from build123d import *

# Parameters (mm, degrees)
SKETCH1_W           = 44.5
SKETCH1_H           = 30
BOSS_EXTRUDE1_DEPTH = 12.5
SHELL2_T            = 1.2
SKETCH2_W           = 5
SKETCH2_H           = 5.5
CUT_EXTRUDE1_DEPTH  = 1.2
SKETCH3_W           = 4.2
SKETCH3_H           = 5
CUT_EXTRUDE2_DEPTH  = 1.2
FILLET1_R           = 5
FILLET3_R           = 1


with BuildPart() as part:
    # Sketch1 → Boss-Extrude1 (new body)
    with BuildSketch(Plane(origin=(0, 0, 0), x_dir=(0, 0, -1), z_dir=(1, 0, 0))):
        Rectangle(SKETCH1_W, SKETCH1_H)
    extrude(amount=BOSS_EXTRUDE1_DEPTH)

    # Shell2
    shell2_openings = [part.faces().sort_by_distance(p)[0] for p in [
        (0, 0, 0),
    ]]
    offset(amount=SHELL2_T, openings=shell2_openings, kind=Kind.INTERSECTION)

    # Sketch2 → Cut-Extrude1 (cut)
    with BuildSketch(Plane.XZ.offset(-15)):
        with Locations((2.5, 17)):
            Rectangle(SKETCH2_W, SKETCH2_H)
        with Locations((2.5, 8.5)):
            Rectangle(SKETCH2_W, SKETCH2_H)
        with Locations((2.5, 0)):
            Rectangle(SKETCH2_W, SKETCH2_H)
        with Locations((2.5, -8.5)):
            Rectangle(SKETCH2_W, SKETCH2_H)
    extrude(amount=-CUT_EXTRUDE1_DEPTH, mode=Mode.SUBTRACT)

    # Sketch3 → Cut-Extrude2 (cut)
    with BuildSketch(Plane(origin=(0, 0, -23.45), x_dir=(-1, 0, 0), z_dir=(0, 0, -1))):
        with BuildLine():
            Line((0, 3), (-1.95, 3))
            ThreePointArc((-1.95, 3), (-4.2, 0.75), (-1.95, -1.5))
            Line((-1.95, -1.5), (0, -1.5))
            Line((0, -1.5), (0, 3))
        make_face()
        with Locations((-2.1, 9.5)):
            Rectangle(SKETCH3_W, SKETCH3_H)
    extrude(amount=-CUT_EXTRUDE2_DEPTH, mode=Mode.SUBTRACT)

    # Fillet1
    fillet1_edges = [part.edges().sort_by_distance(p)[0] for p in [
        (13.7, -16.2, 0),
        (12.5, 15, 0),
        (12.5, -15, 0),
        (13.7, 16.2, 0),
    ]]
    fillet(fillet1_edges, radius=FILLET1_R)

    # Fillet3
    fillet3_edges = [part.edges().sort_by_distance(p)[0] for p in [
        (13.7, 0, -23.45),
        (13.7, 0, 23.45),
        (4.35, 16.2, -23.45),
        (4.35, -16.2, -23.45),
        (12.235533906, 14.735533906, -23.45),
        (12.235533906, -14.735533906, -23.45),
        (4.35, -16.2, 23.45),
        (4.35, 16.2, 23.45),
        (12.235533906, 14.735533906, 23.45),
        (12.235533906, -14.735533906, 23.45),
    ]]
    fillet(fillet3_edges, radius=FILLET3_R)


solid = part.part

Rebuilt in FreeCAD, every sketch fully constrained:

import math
import FreeCAD as App
import Part
import Sketcher
from FreeCAD import Vector
Q = App.Units.Quantity


def edges_at(feature, points):
    """Names of the edges that pass closest to the given points."""
    edges = feature.Shape.Edges
    near = lambda p: min(range(len(edges)), key=lambda i: edges[i].distToShape(Part.Vertex(*p))[0])
    return sorted({f"Edge{near(p) + 1}" for p in points})


def faces_at(feature, points):
    """Names of the faces that lie closest to the given points."""
    faces = feature.Shape.Faces
    near = lambda p: min(range(len(faces)), key=lambda i: faces[i].distToShape(Part.Vertex(*p))[0])
    return sorted({f"Face{near(p) + 1}" for p in points})


def add_polygon(sketch, points):
    """Adds a closed chain of lines whose ends are joined by coincident constraints."""
    first, n = sketch.GeometryCount, len(points)
    for a, b in zip(points, points[1:] + points[:1]):
        sketch.addGeometry(Part.LineSegment(App.Vector(*a, 0), App.Vector(*b, 0)), False)
    for i in range(n):
        sketch.addConstraint(Sketcher.Constraint("Coincident", first + i, 2, first + (i + 1) % n, 1))

doc = App.newDocument("Part")
body = doc.addObject("PartDesign::Body", "Body")

# Sketch on YZ plane
sketch1 = body.newObject("Sketcher::SketchObject", "Sketch")
sketch1.AttachmentSupport = (doc.getObject("YZ_Plane"), [""])
sketch1.MapMode = "FlatFace"
add_polygon(sketch1, [(15, 22), (-15, 22), (-15, -22), (15, -22)])  # lines 0-3
sketch1.addConstraint(Sketcher.Constraint("Horizontal", 0))
sketch1.addConstraint(Sketcher.Constraint("Vertical", 1))
sketch1.addConstraint(Sketcher.Constraint("Horizontal", 2))
sketch1.addConstraint(Sketcher.Constraint("Vertical", 3))
sketch1.addConstraint(Sketcher.Constraint("Symmetric", 0, 2, 2, 2, -1, 1))
sketch1.addConstraint(Sketcher.Constraint("DistanceX", 0, 2, 0, 1, Q("30 mm")))
sketch1.addConstraint(Sketcher.Constraint("DistanceY", 1, 2, 1, 1, Q("44.5 mm")))
pad1 = body.newObject("PartDesign::Pad", "Pad")
pad1.Profile = sketch1
pad1.Length = 12.5
doc.recompute()

thickness = body.newObject("PartDesign::Thickness", "Thickness")
thickness.Base = (pad1, faces_at(pad1, [(0, 0, 0)]))
thickness.Value = 1.2
thickness.Reversed = False
thickness.Join = "Intersection"

# Sketch on XZ plane
sketch2 = body.newObject("Sketcher::SketchObject", "Sketch001")
sketch2.AttachmentSupport = (doc.getObject("XZ_Plane"), [""])
sketch2.MapMode = "FlatFace"
sketch2.AttachmentOffset = App.Placement(Vector(0, 0, -15), App.Rotation())
add_polygon(sketch2, [(0, 20), (0, 14), (5, 14), (5, 20)])  # lines 0-3
add_polygon(sketch2, [(0, 11), (0, 6), (5, 6), (5, 11)])  # lines 4-7
add_polygon(sketch2, [(0, 3), (0, -3), (5, -3), (5, 3)])  # lines 8-11
add_polygon(sketch2, [(0, -6), (0, -11), (5, -11), (5, -6)])  # lines 12-15
sketch2.addConstraint(Sketcher.Constraint("Vertical", 0))
sketch2.addConstraint(Sketcher.Constraint("Horizontal", 1))
sketch2.addConstraint(Sketcher.Constraint("Vertical", 2))
sketch2.addConstraint(Sketcher.Constraint("Horizontal", 3))
sketch2.addConstraint(Sketcher.Constraint("Vertical", 4))
sketch2.addConstraint(Sketcher.Constraint("Horizontal", 5))
sketch2.addConstraint(Sketcher.Constraint("Vertical", 6))
sketch2.addConstraint(Sketcher.Constraint("Horizontal", 7))
sketch2.addConstraint(Sketcher.Constraint("Vertical", 8))
sketch2.addConstraint(Sketcher.Constraint("Horizontal", 9))
sketch2.addConstraint(Sketcher.Constraint("Vertical", 10))
sketch2.addConstraint(Sketcher.Constraint("Horizontal", 11))
sketch2.addConstraint(Sketcher.Constraint("Vertical", 12))
sketch2.addConstraint(Sketcher.Constraint("Horizontal", 13))
sketch2.addConstraint(Sketcher.Constraint("Vertical", 14))
sketch2.addConstraint(Sketcher.Constraint("Horizontal", 15))
sketch2.addConstraint(Sketcher.Constraint("Symmetric", 8, 2, 11, 2, -1, 1))
sketch2.addConstraint(Sketcher.Constraint("Symmetric", 7, 2, 12, 2, -1, 1))
sketch2.addConstraint(Sketcher.Constraint("Symmetric", 5, 2, 14, 2, -1))
sketch2.addConstraint(Sketcher.Constraint("PointOnObject", 0, 2, -2))
sketch2.addConstraint(Sketcher.Constraint("PointOnObject", 4, 2, -2))
sketch2.addConstraint(Sketcher.Constraint("Vertical", 2, 2, 5, 2))
sketch2.addConstraint(Sketcher.Constraint("Vertical", 6, 2, 9, 2))
sketch2.addConstraint(Sketcher.Constraint("Equal", 2, 4))
sketch2.addConstraint(Sketcher.Constraint("Equal", 6, 8))
sketch2.addConstraint(Sketcher.Constraint("DistanceX", 1, 1, 1, 2, Q("5 mm")))
sketch2.addConstraint(Sketcher.Constraint("DistanceY", 0, 2, 0, 1, Q("5.5 mm")))
sketch2.addConstraint(Sketcher.Constraint("DistanceY", 4, 2, 3, 2, Q("14 mm")))
sketch2.addConstraint(Sketcher.Constraint("DistanceY", 8, 2, 7, 2, Q("14 mm")))
pocket1 = body.newObject("PartDesign::Pocket", "Pocket")
pocket1.Profile = sketch2
pocket1.Length = 1.2

# Sketch on XY plane
sketch3 = body.newObject("Sketcher::SketchObject", "Sketch002")
sketch3.AttachmentSupport = (doc.getObject("XY_Plane"), [""])
sketch3.MapMode = "FlatFace"
sketch3.AttachmentOffset = App.Placement(Vector(0, 0, -23.45), App.Rotation())
sketch3.addGeometry(Part.LineSegment(Vector(0, 3, 0), Vector(1.9, 3, 0)), False)  # 0
sketch3.addGeometry(Part.ArcOfCircle(Part.Circle(Vector(1.9, 0.8, 0), Vector(0, 0, 1), 2.2), math.radians(-90), math.radians(90)), False)  # 1
sketch3.addGeometry(Part.LineSegment(Vector(1.9, -1.5, 0), Vector(0, -1.5, 0)), False)  # 2
sketch3.addGeometry(Part.LineSegment(Vector(0, -1.5, 0), Vector(0, 3, 0)), False)  # 3
add_polygon(sketch3, [(4.2, 12), (4.2, 7), (0, 7), (0, 12)])  # lines 4-7
sketch3.addConstraint(Sketcher.Constraint("Tangent", 0, 2, 1, 2))
sketch3.addConstraint(Sketcher.Constraint("Tangent", 1, 1, 2, 1))
sketch3.addConstraint(Sketcher.Constraint("Coincident", 2, 2, 3, 1))
sketch3.addConstraint(Sketcher.Constraint("Coincident", 3, 2, 0, 1))
sketch3.addConstraint(Sketcher.Constraint("Horizontal", 0))
sketch3.addConstraint(Sketcher.Constraint("Horizontal", 2))
sketch3.addConstraint(Sketcher.Constraint("Vertical", 3))
sketch3.addConstraint(Sketcher.Constraint("Vertical", 4))
sketch3.addConstraint(Sketcher.Constraint("Horizontal", 5))
sketch3.addConstraint(Sketcher.Constraint("Vertical", 6))
sketch3.addConstraint(Sketcher.Constraint("Horizontal", 7))
sketch3.addConstraint(Sketcher.Constraint("PointOnObject", 2, 2, -2))
sketch3.addConstraint(Sketcher.Constraint("PointOnObject", 5, 2, -2))
sketch3.addConstraint(Sketcher.Constraint("DistanceY", 4, 2, 4, 1, Q("5 mm")))
sketch3.addConstraint(Sketcher.Constraint("Radius", 1, Q("2.25 mm")))
sketch3.addConstraint(Sketcher.Constraint("DistanceX", 5, 2, 5, 1, Q("4.2 mm")))
sketch3.addConstraint(Sketcher.Constraint("DistanceY", -1, 1, 0, 2, Q("3 mm")))
sketch3.addConstraint(Sketcher.Constraint("DistanceY", -1, 1, 4, 2, Q("7 mm")))
sketch3.addConstraint(Sketcher.Constraint("DistanceX", 0, 1, 0, 2, Q("1.95 mm")))
pocket2 = body.newObject("PartDesign::Pocket", "Pocket001")
pocket2.Profile = sketch3
pocket2.Length = 1.2
pocket2.Reversed = True
doc.recompute()

fillet = body.newObject("PartDesign::Fillet", "Fillet")
fillet.Base = (pocket2, edges_at(pocket2, [
    (13.7, -16.2, 0),
    (12.5, 15, 0),
    (12.5, -15, 0),
    (13.7, 16.2, 0),
]))
fillet.Radius = 5
doc.recompute()

fillet2 = body.newObject("PartDesign::Fillet", "Fillet001")
fillet2.Base = (fillet, edges_at(fillet, [
    (13.7, 0, -23.45),
    (13.7, 0, 23.45),
    (4.35, 16.2, -23.45),
    (4.35, -16.2, -23.45),
    (12.236, 14.736, -23.45),
    (12.236, -14.736, -23.45),
    (4.35, -16.2, 23.45),
    (4.35, 16.2, 23.45),
    (12.236, 14.736, 23.45),
    (12.236, -14.736, 23.45),
]))
fillet2.Radius = 1

doc.recompute()
